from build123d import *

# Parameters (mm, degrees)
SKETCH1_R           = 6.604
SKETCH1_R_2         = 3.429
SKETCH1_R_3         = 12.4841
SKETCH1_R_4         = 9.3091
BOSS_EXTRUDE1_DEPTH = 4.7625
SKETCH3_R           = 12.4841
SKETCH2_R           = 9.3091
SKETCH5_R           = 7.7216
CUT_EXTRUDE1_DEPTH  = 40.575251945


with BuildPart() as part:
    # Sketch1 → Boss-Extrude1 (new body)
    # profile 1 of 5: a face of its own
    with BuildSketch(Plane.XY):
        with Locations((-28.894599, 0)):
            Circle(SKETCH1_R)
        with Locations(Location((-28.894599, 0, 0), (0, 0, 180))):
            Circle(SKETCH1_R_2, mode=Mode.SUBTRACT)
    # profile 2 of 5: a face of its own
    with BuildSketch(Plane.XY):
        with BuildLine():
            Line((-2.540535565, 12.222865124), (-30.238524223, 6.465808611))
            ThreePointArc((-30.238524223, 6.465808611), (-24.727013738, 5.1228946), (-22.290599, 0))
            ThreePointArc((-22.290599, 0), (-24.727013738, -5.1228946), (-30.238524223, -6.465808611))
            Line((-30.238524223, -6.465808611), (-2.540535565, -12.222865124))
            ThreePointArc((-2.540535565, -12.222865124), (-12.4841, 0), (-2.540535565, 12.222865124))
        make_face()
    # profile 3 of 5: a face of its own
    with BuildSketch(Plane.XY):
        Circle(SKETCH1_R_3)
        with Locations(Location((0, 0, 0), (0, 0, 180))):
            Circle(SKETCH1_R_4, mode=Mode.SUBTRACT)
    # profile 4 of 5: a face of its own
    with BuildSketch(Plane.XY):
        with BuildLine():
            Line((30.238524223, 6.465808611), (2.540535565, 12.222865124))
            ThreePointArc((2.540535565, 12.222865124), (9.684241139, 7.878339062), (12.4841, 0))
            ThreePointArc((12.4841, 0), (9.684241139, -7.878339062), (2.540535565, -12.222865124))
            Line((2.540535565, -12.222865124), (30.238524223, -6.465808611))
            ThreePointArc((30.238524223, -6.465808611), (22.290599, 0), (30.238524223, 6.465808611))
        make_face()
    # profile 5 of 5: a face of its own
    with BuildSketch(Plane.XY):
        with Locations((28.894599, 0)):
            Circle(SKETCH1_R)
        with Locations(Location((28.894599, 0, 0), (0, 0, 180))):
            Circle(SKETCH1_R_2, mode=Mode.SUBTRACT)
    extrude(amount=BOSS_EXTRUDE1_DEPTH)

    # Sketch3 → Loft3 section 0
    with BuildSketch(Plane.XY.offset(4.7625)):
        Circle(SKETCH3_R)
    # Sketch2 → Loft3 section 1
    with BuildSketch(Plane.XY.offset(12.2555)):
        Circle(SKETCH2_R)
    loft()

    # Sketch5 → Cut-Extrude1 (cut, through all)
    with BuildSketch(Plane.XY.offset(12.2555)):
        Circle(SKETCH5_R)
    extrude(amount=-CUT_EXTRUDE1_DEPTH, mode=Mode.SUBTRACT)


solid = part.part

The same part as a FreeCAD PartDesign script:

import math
import FreeCAD as App
import Part
import Sketcher

V = App.Vector
Q = App.Units.Quantity

doc = App.newDocument("Part")
body = doc.addObject("PartDesign::Body", "Body")

# Sketch on XY plane
sketch1 = body.newObject("Sketcher::SketchObject", "Sketch")
sketch1.AttachmentSupport = (doc.getObject("XY_Plane"), [""])
sketch1.MapMode = "FlatFace"
sketch1.addGeometry(Part.ArcOfCircle(Part.Circle(V(-28.9, 0, 0), V(0, 0, 1), 6.6), math.radians(102), math.radians(258)), False)
sketch1.addGeometry(Part.LineSegment(V(-30.2, -6.5, 0), V(-2.5, -12.2, 0)), False)
sketch1.addGeometry(Part.ArcOfCircle(Part.Circle(V(0, 0, 0), V(0, 0, 1), 12.5), math.radians(-102), math.radians(-78)), False)
sketch1.addGeometry(Part.LineSegment(V(2.5, -12.2, 0), V(30.2, -6.5, 0)), False)
sketch1.addGeometry(Part.ArcOfCircle(Part.Circle(V(28.9, 0, 0), V(0, 0, 1), 6.6), math.radians(-78), math.radians(78)), False)
sketch1.addGeometry(Part.LineSegment(V(30.2, 6.5, 0), V(2.5, 12.2, 0)), False)
sketch1.addGeometry(Part.ArcOfCircle(Part.Circle(V(0, 0, 0), V(0, 0, 1), 12.5), math.radians(78), math.radians(102)), False)
sketch1.addGeometry(Part.LineSegment(V(-2.5, 12.2, 0), V(-30.2, 6.5, 0)), False)
sketch1.addGeometry(Part.Circle(V(-28.9, 0, 0), V(0, 0, 1), 3.4), False)
sketch1.addGeometry(Part.Circle(V(0, 0, 0), V(0, 0, 1), 9.3), False)
sketch1.addGeometry(Part.Circle(V(28.9, 0, 0), V(0, 0, 1), 3.4), False)
sketch1.addConstraint(Sketcher.Constraint("Tangent", 0, 2, 1, 1))
sketch1.addConstraint(Sketcher.Constraint("Tangent", 1, 2, 2, 1))
sketch1.addConstraint(Sketcher.Constraint("Tangent", 2, 2, 3, 1))
sketch1.addConstraint(Sketcher.Constraint("Tangent", 3, 2, 4, 1))
sketch1.addConstraint(Sketcher.Constraint("Tangent", 4, 2, 5, 1))
sketch1.addConstraint(Sketcher.Constraint("Tangent", 5, 2, 6, 1))
sketch1.addConstraint(Sketcher.Constraint("Tangent", 6, 2, 7, 1))
sketch1.addConstraint(Sketcher.Constraint("Tangent", 7, 2, 0, 1))
sketch1.addConstraint(Sketcher.Constraint("Coincident", 2, 3, -1, 1))
sketch1.addConstraint(Sketcher.Constraint("Coincident", 6, 3, -1, 1))
sketch1.addConstraint(Sketcher.Constraint("Coincident", 9, 3, -1, 1))
sketch1.addConstraint(Sketcher.Constraint("Coincident", 8, 3, 0, 3))
sketch1.addConstraint(Sketcher.Constraint("Coincident", 10, 3, 4, 3))
sketch1.addConstraint(Sketcher.Constraint("Equal", 0, 4))
sketch1.addConstraint(Sketcher.Constraint("Equal", 2, 6))
sketch1.addConstraint(Sketcher.Constraint("Equal", 8, 10))
sketch1.addConstraint(Sketcher.Constraint("Symmetric", 0, 3, 4, 3, -1, 1))
sketch1.addConstraint(Sketcher.Constraint("PointOnObject", 0, 3, -1))
sketch1.addConstraint(Sketcher.Constraint("Diameter", 8, Q("0.27 in")))
sketch1.addConstraint(Sketcher.Constraint("Radius", 0, Q("0.26 in")))
sketch1.addConstraint(Sketcher.Constraint("Diameter", 9, Q("0.733 in")))
sketch1.addConstraint(Sketcher.Constraint("Radius", 2, Q("0.4915 in")))
sketch1.addConstraint(Sketcher.Constraint("DistanceX", 0, 3, -1, 1, 28.894599))
pad1 = body.newObject("PartDesign::Pad", "Pad")
pad1.Profile = sketch1
pad1.Length = Q("0.1875 in")

# Sketch on XY plane
sketch2 = body.newObject("Sketcher::SketchObject", "Sketch001")
sketch2.AttachmentSupport = (doc.getObject("XY_Plane"), [""])
sketch2.MapMode = "FlatFace"
sketch2.AttachmentOffset = App.Placement(V(0, 0, 0.1875 * 25.4), App.Rotation())
sketch2.addGeometry(Part.Circle(V(0, 0, 0), V(0, 0, 1), 12), False)
sketch2.addConstraint(Sketcher.Constraint("Coincident", 0, 3, -1, 1))
sketch2.addConstraint(Sketcher.Constraint("Diameter", 0, Q("0.983 in")))

# Sketch on XY plane
sketch3 = body.newObject("Sketcher::SketchObject", "Sketch002")
sketch3.AttachmentSupport = (doc.getObject("XY_Plane"), [""])
sketch3.MapMode = "FlatFace"
sketch3.AttachmentOffset = App.Placement(V(0, 0, 0.4825 * 25.4), App.Rotation())
sketch3.addGeometry(Part.Circle(V(0, 0, 0), V(0, 0, 1), 9), False)
sketch3.addConstraint(Sketcher.Constraint("Coincident", 0, 3, -1, 1))
sketch3.addConstraint(Sketcher.Constraint("Diameter", 0, Q("0.733 in")))

additiveloft = body.newObject("PartDesign::AdditiveLoft", "AdditiveLoft")
additiveloft.Profile = sketch2
additiveloft.Sections = [sketch3]

# Sketch on XY plane
sketch4 = body.newObject("Sketcher::SketchObject", "Sketch003")
sketch4.AttachmentSupport = (doc.getObject("XY_Plane"), [""])
sketch4.MapMode = "FlatFace"
sketch4.AttachmentOffset = App.Placement(V(0, 0, 0.4825 * 25.4), App.Rotation())
sketch4.addGeometry(Part.Circle(V(0, 0, 0), V(0, 0, 1), 8), False)
sketch4.addConstraint(Sketcher.Constraint("Coincident", 0, 3, -1, 1))
sketch4.addConstraint(Sketcher.Constraint("Diameter", 0, Q("0.608 in")))
pocket1 = body.newObject("PartDesign::Pocket", "Pocket")
pocket1.Profile = sketch4
pocket1.Type = "ThroughAll"

doc.recompute()
